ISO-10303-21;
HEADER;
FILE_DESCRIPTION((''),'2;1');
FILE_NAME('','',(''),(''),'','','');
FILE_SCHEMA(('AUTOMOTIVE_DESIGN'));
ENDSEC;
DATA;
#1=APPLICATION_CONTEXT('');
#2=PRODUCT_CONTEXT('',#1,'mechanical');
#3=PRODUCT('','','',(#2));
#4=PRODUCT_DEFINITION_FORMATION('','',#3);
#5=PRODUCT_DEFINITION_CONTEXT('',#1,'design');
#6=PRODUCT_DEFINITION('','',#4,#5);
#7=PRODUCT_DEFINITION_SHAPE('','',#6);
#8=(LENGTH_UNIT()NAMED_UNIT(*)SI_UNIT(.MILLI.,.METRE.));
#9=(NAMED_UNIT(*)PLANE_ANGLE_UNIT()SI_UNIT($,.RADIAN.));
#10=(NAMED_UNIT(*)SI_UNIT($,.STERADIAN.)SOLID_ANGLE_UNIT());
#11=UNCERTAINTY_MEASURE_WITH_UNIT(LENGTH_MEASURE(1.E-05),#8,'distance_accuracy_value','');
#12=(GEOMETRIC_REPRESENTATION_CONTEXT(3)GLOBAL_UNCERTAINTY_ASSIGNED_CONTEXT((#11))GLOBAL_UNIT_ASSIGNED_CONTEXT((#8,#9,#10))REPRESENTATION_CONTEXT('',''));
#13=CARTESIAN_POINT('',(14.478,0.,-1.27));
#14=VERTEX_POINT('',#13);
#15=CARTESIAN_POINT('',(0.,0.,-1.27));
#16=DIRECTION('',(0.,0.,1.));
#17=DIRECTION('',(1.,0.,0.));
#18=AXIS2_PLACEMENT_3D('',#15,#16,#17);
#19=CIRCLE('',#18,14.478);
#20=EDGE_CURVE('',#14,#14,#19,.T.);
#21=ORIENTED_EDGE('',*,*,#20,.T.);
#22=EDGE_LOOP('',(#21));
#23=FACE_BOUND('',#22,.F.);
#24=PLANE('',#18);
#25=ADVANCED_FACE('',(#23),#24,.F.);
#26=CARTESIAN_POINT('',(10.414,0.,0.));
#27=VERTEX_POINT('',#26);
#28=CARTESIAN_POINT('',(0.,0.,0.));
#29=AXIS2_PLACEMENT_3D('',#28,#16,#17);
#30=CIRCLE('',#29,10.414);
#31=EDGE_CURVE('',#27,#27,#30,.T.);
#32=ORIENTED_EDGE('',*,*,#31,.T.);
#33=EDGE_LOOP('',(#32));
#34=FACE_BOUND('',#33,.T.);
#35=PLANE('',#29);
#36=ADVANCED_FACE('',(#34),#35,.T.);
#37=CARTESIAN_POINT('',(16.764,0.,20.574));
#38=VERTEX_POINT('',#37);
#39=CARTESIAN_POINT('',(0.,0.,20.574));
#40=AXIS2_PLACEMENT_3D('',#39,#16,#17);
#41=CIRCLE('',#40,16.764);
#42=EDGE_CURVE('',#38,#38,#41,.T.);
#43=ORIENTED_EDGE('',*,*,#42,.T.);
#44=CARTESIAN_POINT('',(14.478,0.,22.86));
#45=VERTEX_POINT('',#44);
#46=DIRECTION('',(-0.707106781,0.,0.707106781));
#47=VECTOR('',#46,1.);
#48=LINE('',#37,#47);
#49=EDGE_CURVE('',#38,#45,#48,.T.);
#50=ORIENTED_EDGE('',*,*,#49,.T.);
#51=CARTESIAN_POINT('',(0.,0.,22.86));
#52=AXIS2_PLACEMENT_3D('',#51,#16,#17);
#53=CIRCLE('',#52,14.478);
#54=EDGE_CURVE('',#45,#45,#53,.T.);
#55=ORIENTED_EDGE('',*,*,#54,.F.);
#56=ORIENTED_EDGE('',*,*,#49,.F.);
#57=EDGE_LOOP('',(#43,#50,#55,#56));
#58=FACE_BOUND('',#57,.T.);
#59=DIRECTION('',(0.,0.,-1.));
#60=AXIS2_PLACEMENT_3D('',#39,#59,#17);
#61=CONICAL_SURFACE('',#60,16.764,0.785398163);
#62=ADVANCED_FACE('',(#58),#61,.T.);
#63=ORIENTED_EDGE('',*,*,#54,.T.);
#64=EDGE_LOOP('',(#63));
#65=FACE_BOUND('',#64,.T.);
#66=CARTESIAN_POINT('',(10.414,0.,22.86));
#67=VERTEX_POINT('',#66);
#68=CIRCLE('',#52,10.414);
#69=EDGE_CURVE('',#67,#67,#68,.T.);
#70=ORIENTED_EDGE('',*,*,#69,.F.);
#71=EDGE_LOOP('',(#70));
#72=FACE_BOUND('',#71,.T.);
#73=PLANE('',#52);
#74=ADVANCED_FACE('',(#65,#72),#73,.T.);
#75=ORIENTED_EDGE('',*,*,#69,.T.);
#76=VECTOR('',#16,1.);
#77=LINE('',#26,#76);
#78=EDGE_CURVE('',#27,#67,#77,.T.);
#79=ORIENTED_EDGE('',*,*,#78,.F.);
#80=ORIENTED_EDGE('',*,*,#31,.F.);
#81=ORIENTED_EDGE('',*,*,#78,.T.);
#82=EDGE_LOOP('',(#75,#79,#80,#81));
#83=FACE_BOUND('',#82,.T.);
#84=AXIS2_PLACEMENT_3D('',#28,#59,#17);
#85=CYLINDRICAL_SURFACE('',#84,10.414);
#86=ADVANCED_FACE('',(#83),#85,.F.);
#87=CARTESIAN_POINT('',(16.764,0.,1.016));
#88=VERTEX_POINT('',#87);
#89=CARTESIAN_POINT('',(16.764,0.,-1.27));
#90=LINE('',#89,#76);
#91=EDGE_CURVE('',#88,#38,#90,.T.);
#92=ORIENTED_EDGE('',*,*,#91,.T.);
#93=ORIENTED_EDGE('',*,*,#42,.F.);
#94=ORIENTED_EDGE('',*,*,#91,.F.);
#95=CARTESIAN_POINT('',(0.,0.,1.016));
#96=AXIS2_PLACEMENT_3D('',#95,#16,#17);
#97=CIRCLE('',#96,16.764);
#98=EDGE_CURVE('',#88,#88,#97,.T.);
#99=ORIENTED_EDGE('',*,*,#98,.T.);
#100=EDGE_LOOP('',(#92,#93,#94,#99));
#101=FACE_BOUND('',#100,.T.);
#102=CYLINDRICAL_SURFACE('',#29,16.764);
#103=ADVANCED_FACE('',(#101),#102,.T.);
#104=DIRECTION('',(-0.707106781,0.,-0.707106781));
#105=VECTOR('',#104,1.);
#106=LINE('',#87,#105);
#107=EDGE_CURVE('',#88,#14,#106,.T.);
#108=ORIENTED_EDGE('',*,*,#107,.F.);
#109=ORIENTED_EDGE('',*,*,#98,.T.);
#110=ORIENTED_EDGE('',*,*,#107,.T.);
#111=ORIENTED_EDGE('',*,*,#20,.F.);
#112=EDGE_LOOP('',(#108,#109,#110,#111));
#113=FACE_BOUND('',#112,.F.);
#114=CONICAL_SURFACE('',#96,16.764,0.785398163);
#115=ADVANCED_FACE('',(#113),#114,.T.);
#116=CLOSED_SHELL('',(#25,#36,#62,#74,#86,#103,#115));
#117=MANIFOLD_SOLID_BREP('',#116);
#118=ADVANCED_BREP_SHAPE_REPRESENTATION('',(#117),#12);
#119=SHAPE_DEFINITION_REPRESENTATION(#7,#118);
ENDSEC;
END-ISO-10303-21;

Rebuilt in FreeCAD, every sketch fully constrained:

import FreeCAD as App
import Part
import Sketcher

V = App.Vector
Q = App.Units.Quantity


def edges_at(feature, points):
    """Names of the edges that pass closest to the given points."""
    edges = feature.Shape.Edges
    near = lambda p: min(range(len(edges)), key=lambda i: edges[i].distToShape(Part.Vertex(*p))[0])
    return sorted({f"Edge{near(p) + 1}" for p in points})

doc = App.newDocument("Part")
body = doc.addObject("PartDesign::Body", "Body")

# Sketch on XY plane
sketch1 = doc.addObject("Sketcher::SketchObject", "Sketch")
body.addObject(sketch1)
sketch1.AttachmentSupport = (doc.XY_Plane, [""])
sketch1.MapMode = "FlatFace"
sketch1.addGeometry(Part.Circle(V(0, 0, 0), V(0, 0, 1), 17), False)
sketch1.addGeometry(Part.Circle(V(0, 0, 0), V(0, 0, 1), 10), False)
sketch1.addConstraint(Sketcher.Constraint("Coincident", 0, 3, -1, 1))
sketch1.addConstraint(Sketcher.Constraint("Coincident", 1, 3, -1, 1))
sketch1.addConstraint(Sketcher.Constraint("Diameter", 0, Q("1.32 in")))
sketch1.addConstraint(Sketcher.Constraint("Diameter", 1, Q("0.82 in")))
pad1 = doc.addObject("PartDesign::Pad", "Pad")
body.addObject(pad1)
pad1.Profile = sketch1
pad1.Length = Q("0.9 in")

# Sketch on XY plane
sketch2 = doc.addObject("Sketcher::SketchObject", "Sketch001")
body.addObject(sketch2)
sketch2.AttachmentSupport = (doc.XY_Plane, [""])
sketch2.MapMode = "FlatFace"
sketch2.addGeometry(Part.Circle(V(0, 0, 0), V(0, 0, 1), 17), False)
sketch2.addConstraint(Sketcher.Constraint("Coincident", 0, 3, -1, 1))
sketch2.addConstraint(Sketcher.Constraint("Diameter", 0, Q("1.32 in")))
pad2 = doc.addObject("PartDesign::Pad", "Pad001")
body.addObject(pad2)
pad2.Profile = sketch2
pad2.Length = Q("0.05 in")
pad2.Reversed = True
doc.recompute()

chamfer = doc.addObject("PartDesign::Chamfer", "Chamfer")
body.addObject(chamfer)
chamfer.Base = (pad2, edges_at(pad2, [(-16.764, 0, -1.27), (-16.764, 0, 22.86)]))
chamfer.Size = Q("0.09 in")

doc.recompute()
